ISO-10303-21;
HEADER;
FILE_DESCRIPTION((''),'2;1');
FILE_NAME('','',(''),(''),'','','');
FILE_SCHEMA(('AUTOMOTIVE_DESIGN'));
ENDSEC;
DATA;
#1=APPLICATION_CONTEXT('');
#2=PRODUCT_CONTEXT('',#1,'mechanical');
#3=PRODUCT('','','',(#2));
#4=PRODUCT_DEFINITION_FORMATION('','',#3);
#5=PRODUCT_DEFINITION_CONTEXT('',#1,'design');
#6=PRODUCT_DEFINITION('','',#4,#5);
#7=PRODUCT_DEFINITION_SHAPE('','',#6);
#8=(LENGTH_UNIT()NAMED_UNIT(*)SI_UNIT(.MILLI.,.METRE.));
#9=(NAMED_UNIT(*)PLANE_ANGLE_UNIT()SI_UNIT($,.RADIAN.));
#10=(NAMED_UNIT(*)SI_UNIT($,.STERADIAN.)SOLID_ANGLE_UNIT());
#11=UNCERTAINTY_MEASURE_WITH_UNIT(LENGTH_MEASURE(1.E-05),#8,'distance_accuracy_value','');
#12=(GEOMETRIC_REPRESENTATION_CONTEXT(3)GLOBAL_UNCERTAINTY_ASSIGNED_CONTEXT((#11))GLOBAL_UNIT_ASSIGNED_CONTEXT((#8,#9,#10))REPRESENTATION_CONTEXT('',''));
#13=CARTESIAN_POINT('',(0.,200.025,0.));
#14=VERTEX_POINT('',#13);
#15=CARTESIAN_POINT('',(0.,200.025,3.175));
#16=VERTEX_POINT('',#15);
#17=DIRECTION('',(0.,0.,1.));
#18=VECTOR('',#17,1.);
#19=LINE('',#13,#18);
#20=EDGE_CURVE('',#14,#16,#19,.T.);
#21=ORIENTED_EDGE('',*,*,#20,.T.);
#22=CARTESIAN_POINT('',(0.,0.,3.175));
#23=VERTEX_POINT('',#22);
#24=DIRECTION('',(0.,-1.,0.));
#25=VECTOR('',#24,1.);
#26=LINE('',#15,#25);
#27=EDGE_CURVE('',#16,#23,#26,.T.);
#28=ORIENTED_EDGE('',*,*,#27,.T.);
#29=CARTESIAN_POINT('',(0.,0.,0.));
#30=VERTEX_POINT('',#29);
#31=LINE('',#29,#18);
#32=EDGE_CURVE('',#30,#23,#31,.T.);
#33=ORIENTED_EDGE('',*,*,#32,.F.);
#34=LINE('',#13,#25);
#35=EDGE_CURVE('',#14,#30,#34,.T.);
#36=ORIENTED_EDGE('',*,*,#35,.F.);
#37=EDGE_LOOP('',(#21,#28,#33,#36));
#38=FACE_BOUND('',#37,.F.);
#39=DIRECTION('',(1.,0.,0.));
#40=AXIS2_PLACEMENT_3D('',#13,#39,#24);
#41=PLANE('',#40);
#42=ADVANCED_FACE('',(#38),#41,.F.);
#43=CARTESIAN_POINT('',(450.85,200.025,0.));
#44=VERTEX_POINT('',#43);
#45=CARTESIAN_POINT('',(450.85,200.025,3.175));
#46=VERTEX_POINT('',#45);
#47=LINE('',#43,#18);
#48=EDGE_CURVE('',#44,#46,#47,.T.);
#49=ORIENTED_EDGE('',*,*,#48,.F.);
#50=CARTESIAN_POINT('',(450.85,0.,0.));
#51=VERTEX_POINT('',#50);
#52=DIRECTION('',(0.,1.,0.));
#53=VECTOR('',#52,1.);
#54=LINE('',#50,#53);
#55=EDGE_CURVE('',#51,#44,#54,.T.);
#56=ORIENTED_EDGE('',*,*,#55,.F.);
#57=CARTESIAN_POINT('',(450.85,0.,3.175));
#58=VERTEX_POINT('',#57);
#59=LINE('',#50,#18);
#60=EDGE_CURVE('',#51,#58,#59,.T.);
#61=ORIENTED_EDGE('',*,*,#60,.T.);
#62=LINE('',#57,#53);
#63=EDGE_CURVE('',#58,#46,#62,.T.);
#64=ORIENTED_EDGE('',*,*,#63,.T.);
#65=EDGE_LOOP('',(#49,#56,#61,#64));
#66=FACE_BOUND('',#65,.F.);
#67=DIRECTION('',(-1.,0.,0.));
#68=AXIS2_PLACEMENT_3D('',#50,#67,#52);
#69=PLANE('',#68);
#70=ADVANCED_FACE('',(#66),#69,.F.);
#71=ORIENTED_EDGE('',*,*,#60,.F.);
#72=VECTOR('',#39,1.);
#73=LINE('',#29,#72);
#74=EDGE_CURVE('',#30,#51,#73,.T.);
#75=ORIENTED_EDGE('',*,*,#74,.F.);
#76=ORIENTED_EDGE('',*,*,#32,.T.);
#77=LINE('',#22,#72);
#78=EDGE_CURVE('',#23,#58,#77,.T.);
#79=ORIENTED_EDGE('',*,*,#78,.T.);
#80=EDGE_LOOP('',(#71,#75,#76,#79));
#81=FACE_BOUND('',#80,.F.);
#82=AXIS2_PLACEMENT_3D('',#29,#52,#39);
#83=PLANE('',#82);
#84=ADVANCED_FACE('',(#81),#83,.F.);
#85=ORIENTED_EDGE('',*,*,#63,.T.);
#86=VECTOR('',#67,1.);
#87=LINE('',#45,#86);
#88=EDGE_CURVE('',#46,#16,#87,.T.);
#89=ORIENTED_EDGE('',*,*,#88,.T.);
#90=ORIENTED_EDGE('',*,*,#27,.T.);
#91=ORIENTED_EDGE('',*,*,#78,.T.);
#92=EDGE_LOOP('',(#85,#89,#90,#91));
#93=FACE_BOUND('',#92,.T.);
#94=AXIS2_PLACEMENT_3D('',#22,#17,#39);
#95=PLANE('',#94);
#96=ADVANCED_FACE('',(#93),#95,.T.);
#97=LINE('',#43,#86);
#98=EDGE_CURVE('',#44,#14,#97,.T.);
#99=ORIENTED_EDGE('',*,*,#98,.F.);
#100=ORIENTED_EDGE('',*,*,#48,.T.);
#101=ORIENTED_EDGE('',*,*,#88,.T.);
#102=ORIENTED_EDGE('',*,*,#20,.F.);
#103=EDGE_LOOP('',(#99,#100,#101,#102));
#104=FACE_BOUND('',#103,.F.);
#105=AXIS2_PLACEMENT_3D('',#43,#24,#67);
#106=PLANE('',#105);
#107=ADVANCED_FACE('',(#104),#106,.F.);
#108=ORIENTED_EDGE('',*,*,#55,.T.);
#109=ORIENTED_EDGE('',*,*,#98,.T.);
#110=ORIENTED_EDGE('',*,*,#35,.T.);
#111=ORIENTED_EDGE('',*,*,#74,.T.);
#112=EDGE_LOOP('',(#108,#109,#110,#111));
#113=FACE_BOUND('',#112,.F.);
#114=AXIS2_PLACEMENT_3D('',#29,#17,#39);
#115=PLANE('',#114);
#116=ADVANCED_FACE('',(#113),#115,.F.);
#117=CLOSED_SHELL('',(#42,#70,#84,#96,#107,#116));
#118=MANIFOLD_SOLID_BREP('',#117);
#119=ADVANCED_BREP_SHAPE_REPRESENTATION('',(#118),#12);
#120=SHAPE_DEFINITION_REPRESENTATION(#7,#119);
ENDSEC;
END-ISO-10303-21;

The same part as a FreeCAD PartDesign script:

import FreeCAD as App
import Part
import Sketcher
Q = App.Units.Quantity


def add_polygon(sketch, points):
    """Adds a closed chain of lines whose ends are joined by coincident constraints."""
    first, n = sketch.GeometryCount, len(points)
    for a, b in zip(points, points[1:] + points[:1]):
        sketch.addGeometry(Part.LineSegment(App.Vector(*a, 0), App.Vector(*b, 0)), False)
    for i in range(n):
        sketch.addConstraint(Sketcher.Constraint("Coincident", first + i, 2, first + (i + 1) % n, 1))

doc = App.newDocument("Part")
body = doc.addObject("PartDesign::Body", "Body")

# Sketch on XY plane
sketch1 = body.newObject("Sketcher::SketchObject", "Sketch")
sketch1.AttachmentSupport = (doc.getObject("XY_Plane"), [""])
sketch1.MapMode = "FlatFace"
add_polygon(sketch1, [(0, 200), (0, 0), (451, 0), (451, 200)])  # lines 0-3
sketch1.addConstraint([
    Sketcher.Constraint("Vertical", 0),
    Sketcher.Constraint("Horizontal", 1),
    Sketcher.Constraint("Vertical", 2),
    Sketcher.Constraint("Horizontal", 3),
    Sketcher.Constraint("Coincident", 0, 2, -1, 1),
    Sketcher.Constraint("DistanceX", 1, 1, 1, 2, Q("17.75 in")),
    Sketcher.Constraint("DistanceY", 0, 2, 0, 1, Q("7.875 in")),
])
pad1 = body.newObject("PartDesign::Pad", "Pad")
pad1.Profile = sketch1
pad1.Length = Q("0.125 in")

doc.recompute()
